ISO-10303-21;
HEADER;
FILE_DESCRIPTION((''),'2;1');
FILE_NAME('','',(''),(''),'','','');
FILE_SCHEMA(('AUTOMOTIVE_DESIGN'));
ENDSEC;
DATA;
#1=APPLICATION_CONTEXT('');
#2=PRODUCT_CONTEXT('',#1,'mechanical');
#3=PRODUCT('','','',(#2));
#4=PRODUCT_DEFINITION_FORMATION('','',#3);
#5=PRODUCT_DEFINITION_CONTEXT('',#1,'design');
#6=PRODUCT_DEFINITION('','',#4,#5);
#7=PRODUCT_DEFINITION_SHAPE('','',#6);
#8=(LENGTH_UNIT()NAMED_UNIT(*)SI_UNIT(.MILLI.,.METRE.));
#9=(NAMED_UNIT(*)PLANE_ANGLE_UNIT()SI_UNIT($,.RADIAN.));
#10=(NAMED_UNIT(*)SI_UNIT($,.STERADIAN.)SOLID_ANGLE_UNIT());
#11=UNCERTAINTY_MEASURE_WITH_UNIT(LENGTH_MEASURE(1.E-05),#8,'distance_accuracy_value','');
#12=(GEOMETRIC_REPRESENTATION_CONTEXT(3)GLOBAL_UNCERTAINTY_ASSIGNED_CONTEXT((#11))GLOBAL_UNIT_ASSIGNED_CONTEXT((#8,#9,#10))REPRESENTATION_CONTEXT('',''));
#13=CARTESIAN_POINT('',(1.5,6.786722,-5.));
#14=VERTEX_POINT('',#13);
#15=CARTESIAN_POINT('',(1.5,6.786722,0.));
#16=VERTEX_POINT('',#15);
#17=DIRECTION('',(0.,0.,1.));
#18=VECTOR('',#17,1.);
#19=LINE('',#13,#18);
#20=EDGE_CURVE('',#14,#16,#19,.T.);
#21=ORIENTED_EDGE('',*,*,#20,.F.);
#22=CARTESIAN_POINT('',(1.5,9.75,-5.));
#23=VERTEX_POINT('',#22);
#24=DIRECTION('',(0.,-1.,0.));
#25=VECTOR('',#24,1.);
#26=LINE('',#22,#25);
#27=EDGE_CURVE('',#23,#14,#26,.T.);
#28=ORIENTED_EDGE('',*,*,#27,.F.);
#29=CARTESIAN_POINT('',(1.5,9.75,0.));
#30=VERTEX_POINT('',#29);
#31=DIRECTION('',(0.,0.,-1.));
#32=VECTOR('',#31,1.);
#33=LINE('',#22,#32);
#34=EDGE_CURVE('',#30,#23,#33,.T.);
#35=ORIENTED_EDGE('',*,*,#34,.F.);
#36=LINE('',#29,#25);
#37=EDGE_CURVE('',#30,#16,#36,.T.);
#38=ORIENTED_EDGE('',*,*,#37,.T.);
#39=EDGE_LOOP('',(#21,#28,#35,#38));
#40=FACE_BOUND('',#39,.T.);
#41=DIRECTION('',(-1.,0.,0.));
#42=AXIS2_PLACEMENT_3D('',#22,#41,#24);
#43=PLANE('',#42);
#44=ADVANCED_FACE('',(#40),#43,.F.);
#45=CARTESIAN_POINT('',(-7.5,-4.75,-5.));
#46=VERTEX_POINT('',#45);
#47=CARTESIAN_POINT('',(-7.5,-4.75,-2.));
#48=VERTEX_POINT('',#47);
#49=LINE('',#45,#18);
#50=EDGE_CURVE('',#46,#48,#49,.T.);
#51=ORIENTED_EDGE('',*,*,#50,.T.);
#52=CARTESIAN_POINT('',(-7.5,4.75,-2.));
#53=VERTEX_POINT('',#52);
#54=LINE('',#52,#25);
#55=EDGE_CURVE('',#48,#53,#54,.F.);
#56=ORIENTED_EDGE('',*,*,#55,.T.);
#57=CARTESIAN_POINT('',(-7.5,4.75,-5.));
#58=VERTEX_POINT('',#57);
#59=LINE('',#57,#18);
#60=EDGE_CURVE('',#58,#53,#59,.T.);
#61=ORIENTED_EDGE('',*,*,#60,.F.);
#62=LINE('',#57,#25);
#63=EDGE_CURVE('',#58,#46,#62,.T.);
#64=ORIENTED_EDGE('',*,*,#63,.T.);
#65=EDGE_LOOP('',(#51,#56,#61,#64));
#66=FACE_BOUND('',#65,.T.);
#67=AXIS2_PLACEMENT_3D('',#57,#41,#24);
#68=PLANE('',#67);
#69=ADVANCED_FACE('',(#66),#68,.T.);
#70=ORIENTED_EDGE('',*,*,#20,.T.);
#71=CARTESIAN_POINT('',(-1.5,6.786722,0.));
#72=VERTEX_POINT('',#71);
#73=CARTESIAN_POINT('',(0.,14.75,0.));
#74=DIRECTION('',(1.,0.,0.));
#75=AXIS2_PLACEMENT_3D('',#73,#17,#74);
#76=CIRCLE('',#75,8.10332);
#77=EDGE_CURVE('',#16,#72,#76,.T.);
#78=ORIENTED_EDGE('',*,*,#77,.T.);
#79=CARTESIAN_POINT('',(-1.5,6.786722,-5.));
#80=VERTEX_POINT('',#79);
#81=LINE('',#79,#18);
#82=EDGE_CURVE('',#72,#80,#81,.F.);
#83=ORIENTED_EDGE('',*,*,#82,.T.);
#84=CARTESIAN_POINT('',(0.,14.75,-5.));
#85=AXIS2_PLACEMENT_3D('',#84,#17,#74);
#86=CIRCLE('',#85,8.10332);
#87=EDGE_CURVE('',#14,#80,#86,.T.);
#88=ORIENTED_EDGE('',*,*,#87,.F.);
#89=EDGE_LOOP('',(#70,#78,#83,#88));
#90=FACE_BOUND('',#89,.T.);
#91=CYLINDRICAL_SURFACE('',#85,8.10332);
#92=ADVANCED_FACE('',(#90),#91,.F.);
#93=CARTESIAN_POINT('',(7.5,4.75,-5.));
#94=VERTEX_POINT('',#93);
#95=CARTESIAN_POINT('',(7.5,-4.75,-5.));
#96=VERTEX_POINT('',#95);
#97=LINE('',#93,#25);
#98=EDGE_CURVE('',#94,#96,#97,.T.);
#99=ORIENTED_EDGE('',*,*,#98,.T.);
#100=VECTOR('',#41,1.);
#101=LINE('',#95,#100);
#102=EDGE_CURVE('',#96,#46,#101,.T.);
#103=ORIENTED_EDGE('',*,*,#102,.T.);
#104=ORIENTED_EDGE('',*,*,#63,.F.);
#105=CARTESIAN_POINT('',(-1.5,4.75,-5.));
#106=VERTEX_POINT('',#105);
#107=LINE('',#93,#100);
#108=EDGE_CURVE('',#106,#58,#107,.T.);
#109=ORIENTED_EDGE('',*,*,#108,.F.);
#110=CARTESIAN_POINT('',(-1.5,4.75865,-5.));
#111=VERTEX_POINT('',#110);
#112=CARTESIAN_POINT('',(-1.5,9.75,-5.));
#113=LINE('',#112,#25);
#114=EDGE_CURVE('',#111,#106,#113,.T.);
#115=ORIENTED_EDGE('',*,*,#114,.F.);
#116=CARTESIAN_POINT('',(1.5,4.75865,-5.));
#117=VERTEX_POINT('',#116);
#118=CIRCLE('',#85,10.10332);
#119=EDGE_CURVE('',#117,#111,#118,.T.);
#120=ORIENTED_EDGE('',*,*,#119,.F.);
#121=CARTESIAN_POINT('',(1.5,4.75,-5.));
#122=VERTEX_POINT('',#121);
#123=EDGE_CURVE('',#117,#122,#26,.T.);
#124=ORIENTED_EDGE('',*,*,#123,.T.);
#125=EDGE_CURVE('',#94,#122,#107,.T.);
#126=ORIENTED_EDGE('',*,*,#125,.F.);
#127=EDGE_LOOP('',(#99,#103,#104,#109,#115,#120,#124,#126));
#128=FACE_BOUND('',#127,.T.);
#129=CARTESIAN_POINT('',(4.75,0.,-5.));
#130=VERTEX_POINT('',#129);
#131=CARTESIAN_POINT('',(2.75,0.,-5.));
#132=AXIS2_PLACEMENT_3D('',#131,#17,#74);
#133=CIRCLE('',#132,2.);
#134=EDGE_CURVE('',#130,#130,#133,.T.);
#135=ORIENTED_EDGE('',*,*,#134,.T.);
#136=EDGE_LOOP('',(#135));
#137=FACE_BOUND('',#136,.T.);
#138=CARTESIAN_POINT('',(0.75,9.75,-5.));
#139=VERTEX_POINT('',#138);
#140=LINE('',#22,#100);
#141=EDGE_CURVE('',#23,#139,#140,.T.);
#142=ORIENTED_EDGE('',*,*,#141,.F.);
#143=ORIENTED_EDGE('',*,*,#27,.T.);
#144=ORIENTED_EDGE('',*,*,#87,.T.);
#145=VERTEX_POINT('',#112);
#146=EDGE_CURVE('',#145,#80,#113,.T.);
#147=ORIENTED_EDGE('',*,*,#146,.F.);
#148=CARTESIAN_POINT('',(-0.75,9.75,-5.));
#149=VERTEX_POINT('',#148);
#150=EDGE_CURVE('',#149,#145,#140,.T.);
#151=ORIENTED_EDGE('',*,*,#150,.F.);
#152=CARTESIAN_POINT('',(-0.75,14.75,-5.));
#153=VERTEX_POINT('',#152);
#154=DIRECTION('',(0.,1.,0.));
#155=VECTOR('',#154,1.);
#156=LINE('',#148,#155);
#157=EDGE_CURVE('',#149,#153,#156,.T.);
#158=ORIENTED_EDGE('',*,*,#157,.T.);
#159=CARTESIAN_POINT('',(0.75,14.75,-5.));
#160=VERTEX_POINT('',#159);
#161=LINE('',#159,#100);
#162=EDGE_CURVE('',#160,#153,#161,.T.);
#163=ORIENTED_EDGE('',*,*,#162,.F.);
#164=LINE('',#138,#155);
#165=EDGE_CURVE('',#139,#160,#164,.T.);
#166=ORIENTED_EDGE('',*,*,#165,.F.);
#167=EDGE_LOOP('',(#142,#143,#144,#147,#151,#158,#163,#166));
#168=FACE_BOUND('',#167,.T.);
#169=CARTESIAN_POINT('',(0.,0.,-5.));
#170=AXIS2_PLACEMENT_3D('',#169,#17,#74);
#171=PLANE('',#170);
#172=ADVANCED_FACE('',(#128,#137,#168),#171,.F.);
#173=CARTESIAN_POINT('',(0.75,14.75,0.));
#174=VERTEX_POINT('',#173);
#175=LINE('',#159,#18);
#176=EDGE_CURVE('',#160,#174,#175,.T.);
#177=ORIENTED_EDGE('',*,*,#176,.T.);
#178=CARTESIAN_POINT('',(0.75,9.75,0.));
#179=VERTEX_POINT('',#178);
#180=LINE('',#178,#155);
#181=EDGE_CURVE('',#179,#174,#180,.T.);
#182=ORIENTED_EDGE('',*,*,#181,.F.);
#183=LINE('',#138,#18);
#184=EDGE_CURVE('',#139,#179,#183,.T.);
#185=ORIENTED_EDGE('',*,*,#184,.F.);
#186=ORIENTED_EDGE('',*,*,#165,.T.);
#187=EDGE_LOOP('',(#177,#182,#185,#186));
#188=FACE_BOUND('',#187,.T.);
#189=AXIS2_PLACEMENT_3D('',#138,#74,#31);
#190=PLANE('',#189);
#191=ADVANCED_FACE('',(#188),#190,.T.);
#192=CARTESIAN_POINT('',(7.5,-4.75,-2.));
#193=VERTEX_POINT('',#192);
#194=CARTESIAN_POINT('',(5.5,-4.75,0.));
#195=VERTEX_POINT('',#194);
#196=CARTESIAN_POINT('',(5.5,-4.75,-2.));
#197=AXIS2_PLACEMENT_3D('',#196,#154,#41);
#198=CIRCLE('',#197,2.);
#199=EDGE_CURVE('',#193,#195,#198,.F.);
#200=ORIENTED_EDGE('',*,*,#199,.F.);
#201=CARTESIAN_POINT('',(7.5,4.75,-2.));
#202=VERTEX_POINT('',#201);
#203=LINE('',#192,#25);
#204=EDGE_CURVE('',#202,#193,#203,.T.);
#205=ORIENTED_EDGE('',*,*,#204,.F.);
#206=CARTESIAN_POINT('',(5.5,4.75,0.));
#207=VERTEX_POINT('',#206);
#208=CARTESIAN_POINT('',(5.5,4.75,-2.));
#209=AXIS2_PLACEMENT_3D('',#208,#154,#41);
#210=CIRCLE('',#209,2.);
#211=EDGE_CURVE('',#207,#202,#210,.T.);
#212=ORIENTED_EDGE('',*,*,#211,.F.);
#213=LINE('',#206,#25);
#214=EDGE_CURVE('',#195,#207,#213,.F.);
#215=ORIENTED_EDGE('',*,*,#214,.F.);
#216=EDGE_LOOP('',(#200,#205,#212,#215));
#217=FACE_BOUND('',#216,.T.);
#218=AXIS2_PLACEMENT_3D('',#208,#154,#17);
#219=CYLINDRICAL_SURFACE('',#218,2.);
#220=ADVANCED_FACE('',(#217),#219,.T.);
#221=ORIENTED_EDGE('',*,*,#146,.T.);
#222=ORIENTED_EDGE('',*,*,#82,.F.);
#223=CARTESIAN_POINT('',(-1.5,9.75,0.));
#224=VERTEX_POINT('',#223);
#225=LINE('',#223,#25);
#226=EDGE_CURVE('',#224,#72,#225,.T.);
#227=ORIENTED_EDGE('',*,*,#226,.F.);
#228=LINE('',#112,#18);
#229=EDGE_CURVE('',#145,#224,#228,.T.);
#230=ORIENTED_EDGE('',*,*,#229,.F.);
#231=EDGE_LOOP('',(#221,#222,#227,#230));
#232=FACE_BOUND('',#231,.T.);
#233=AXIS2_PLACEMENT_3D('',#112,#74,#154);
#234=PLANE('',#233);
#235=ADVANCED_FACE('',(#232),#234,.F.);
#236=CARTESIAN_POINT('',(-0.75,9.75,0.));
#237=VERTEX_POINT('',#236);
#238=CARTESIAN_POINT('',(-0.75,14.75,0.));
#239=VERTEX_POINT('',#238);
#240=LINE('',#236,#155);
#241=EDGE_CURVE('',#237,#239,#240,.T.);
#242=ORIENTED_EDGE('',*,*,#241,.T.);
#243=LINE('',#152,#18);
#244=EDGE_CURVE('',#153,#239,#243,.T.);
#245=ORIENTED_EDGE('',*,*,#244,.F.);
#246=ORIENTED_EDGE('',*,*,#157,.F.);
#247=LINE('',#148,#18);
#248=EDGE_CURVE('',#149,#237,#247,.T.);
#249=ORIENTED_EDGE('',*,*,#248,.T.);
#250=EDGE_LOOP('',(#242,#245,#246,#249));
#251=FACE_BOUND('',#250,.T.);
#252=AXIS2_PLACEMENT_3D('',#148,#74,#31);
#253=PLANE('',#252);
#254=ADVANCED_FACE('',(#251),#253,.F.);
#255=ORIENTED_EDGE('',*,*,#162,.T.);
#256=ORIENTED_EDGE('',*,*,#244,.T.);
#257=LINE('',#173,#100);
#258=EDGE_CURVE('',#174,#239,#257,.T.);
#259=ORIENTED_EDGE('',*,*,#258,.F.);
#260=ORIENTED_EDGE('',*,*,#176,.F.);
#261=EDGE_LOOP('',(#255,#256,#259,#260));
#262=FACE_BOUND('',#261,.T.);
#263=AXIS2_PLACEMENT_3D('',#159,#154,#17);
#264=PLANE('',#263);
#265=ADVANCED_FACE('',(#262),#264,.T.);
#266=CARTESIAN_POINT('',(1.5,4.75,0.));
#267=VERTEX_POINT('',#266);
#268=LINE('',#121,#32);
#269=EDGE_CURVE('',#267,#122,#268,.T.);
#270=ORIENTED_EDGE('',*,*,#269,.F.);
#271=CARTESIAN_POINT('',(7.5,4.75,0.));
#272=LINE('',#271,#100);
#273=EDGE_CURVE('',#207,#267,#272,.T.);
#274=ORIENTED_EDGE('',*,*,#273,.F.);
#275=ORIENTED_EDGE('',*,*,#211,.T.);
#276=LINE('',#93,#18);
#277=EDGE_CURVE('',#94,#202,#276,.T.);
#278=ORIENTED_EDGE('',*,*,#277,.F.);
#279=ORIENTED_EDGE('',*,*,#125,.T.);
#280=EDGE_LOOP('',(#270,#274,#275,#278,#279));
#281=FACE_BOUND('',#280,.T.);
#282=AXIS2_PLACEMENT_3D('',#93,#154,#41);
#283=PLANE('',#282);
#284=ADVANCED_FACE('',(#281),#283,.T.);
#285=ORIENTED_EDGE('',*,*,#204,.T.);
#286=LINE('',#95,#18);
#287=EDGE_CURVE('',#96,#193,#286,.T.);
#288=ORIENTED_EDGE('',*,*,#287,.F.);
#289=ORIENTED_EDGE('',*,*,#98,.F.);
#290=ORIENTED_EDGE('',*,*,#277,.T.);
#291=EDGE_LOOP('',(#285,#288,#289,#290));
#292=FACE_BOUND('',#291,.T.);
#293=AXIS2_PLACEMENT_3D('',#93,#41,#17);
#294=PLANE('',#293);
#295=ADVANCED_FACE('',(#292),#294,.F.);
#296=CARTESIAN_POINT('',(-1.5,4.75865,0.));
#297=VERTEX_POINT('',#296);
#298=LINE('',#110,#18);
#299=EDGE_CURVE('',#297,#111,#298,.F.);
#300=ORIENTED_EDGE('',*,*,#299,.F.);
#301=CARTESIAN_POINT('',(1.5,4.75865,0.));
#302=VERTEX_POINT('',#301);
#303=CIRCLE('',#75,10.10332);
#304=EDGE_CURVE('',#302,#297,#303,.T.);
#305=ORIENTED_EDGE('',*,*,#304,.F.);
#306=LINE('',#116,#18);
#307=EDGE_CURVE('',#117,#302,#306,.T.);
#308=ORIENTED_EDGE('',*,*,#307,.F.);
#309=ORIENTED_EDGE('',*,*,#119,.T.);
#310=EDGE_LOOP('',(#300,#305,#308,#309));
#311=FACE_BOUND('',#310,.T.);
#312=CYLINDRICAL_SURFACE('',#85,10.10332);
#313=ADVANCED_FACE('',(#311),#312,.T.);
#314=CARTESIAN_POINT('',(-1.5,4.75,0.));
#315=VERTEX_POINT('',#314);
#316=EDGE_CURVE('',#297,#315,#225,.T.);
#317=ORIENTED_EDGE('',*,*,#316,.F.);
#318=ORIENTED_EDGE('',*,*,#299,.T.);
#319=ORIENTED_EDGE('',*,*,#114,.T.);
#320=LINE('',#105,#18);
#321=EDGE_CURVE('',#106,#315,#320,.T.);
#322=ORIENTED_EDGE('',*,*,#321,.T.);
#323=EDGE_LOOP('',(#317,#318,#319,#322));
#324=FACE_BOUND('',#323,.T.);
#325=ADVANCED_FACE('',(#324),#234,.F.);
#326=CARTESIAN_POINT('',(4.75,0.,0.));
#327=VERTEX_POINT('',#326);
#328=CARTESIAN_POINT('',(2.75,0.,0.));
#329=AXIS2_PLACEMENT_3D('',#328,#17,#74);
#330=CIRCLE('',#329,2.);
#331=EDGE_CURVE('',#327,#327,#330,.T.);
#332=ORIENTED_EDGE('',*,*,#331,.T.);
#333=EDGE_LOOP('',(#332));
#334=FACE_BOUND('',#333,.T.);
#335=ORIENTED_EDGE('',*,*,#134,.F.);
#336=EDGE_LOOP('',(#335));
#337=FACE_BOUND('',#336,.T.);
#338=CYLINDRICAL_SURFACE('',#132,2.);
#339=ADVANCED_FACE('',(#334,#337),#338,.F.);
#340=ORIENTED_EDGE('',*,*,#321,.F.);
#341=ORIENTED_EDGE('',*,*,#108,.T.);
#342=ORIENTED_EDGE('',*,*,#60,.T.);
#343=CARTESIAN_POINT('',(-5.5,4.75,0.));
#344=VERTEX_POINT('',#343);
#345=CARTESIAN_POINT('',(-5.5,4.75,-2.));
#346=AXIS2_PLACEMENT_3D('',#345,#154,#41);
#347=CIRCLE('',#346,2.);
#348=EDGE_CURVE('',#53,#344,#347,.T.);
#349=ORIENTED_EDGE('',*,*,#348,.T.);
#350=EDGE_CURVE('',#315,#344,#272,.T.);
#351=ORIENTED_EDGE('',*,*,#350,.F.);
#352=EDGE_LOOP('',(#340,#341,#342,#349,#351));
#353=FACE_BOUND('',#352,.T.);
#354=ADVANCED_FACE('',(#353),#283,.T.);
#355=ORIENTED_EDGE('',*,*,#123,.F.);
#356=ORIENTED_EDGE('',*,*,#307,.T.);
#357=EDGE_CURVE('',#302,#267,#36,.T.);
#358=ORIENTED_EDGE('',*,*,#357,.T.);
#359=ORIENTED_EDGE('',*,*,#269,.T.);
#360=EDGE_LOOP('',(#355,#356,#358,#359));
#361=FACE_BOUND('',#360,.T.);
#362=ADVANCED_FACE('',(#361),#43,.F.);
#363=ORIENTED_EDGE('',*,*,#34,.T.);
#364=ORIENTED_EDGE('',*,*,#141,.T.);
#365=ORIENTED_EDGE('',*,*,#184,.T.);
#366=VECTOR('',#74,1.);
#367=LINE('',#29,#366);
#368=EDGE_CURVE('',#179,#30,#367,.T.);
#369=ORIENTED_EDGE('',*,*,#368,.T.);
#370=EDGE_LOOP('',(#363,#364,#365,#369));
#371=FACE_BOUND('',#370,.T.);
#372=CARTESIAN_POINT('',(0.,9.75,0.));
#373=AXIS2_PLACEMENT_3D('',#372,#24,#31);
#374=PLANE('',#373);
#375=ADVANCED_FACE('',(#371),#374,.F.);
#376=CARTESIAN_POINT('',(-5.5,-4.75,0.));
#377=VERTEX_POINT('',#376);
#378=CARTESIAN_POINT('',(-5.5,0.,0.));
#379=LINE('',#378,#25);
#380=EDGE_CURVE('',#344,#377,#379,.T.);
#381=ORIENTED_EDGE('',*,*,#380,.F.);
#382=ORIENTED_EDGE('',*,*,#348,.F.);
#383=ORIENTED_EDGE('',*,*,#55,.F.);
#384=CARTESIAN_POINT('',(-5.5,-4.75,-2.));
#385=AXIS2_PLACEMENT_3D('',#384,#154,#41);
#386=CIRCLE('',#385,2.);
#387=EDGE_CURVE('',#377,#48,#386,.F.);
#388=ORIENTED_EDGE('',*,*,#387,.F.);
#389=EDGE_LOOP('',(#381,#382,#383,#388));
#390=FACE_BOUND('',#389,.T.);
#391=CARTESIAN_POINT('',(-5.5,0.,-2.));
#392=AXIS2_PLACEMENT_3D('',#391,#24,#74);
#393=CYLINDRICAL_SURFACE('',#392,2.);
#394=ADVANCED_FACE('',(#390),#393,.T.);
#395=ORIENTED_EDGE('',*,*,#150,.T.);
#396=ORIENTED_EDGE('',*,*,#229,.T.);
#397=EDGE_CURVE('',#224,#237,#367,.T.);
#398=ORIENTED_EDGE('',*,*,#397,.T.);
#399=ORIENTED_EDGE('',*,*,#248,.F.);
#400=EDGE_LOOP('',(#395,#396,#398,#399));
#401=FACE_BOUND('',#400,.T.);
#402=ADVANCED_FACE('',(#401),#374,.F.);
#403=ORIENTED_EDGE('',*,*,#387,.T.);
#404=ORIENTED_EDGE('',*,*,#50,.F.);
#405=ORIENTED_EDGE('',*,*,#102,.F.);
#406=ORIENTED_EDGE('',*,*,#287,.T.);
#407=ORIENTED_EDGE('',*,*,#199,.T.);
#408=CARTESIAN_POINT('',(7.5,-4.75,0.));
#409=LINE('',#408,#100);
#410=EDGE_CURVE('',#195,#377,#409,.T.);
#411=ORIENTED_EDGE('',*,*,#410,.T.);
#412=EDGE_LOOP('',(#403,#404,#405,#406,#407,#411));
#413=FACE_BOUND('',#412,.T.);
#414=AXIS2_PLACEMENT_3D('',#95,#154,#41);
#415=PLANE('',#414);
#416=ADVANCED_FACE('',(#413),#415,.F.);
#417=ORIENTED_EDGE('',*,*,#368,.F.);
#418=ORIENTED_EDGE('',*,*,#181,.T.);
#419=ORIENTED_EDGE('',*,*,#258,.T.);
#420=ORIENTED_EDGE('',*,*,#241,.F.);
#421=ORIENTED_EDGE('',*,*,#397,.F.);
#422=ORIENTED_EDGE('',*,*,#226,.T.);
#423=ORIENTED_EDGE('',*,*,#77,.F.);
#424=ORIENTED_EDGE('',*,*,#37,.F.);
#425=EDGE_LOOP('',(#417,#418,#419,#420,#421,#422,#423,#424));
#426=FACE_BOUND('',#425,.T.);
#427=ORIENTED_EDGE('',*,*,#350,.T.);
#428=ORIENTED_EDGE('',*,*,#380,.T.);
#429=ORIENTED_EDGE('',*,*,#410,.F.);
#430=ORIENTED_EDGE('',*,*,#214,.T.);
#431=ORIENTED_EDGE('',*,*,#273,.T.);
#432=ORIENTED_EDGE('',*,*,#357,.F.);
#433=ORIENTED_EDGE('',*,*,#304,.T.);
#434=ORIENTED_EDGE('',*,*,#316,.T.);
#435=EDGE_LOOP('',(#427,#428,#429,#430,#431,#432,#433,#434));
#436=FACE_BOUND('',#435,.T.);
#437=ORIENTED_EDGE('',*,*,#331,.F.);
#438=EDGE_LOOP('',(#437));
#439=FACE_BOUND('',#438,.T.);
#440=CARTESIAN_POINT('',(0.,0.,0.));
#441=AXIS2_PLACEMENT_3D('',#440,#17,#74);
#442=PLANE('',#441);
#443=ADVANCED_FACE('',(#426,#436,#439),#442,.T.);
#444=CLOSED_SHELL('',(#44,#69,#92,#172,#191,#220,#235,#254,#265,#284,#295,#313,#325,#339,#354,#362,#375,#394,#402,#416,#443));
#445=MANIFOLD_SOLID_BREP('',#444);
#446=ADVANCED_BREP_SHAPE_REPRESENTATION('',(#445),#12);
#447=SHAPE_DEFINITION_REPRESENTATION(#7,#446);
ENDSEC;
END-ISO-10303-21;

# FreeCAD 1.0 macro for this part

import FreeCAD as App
import Part
import Sketcher
Q = App.Units.Quantity


def edges_at(feature, points):
    """Names of the edges that pass closest to the given points."""
    edges = feature.Shape.Edges
    near = lambda p: min(range(len(edges)), key=lambda i: edges[i].distToShape(Part.Vertex(*p))[0])
    return sorted({f"Edge{near(p) + 1}" for p in points})


def add_polygon(sketch, points):
    """Adds a closed chain of lines whose ends are joined by coincident constraints."""
    first, n = sketch.GeometryCount, len(points)
    for a, b in zip(points, points[1:] + points[:1]):
        sketch.addGeometry(Part.LineSegment(App.Vector(*a, 0), App.Vector(*b, 0)), False)
    for i in range(n):
        sketch.addConstraint(Sketcher.Constraint("Coincident", first + i, 2, first + (i + 1) % n, 1))

doc = App.newDocument("Part")
body = doc.addObject("PartDesign::Body", "Body")

# Sketch on XY plane
sketch1 = body.newObject("Sketcher::SketchObject", "Sketch")
sketch1.AttachmentSupport = (doc.getObject("XY_Plane"), [""])
sketch1.MapMode = "FlatFace"
add_polygon(sketch1, [(-7.5, 4.75), (-7.5, -4.75), (7.5, -4.75), (7.5, 4.75)])  # lines 0-3
sketch1.addConstraint([
    Sketcher.Constraint("Vertical", 0),
    Sketcher.Constraint("Horizontal", 1),
    Sketcher.Constraint("Vertical", 2),
    Sketcher.Constraint("Horizontal", 3),
    Sketcher.Constraint("Symmetric", 0, 2, 2, 2, -1, 1),
    Sketcher.Constraint("DistanceX", 1, 1, 1, 2, Q("15 mm")),
    Sketcher.Constraint("DistanceY", 0, 2, 0, 1, Q("9.5 mm")),
])
pad1 = body.newObject("PartDesign::Pad", "Pad")
pad1.Profile = sketch1
pad1.Length = 5
pad1.Reversed = True

# Sketch on XY plane
sketch2 = body.newObject("Sketcher::SketchObject", "Sketch001")
sketch2.AttachmentSupport = (doc.getObject("XY_Plane"), [""])
sketch2.MapMode = "FlatFace"
sketch2.addGeometry(Part.Circle(App.Vector(2.75, 0, 0), App.Vector(0, 0, 1), 2), False)
sketch2.addConstraint([
    Sketcher.Constraint("PointOnObject", 0, 3, -1),
    Sketcher.Constraint("Diameter", 0, Q("4 mm")),
    Sketcher.Constraint("DistanceX", -1, 1, 0, 3, Q("2.75 mm")),
])
pocket1 = body.newObject("PartDesign::Pocket", "Pocket")
pocket1.Profile = sketch2
pocket1.Type = "ThroughAll"
pocket1.Midplane = True

# Sketch on XZ plane
sketch3 = body.newObject("Sketcher::SketchObject", "Sketch002")
sketch3.AttachmentSupport = (doc.getObject("XZ_Plane"), [""])
sketch3.MapMode = "FlatFace"
sketch3.AttachmentOffset = App.Placement(App.Vector(0, 0, -4.75), App.Rotation())
add_polygon(sketch3, [(-1.5, -5), (-1.5, 0), (1.5, 0), (1.5, -5)])  # lines 0-3
sketch3.addConstraint([
    Sketcher.Constraint("Vertical", 0),
    Sketcher.Constraint("Horizontal", 1),
    Sketcher.Constraint("Vertical", 2),
    Sketcher.Constraint("Horizontal", 3),
    Sketcher.Constraint("Symmetric", 0, 2, 1, 2, -1, 1),
    Sketcher.Constraint("DistanceX", 1, 1, 1, 2, Q("3 mm")),
    Sketcher.Constraint("DistanceY", 0, 1, 0, 2, Q("5 mm")),
])
pad2 = body.newObject("PartDesign::Pad", "Pad001")
pad2.Profile = sketch3
pad2.Length = 5
pad2.Reversed = True
doc.recompute()

fillet = body.newObject("PartDesign::Fillet", "Fillet")
fillet.Base = (pad2, edges_at(pad2, [(7.5, 0, 0), (-7.5, 0, 0)]))
fillet.Radius = 2

# Sketch on XY plane
sketch4 = body.newObject("Sketcher::SketchObject", "Sketch003")
sketch4.AttachmentSupport = (doc.getObject("XY_Plane"), [""])
sketch4.MapMode = "FlatFace"
add_polygon(sketch4, [(-0.75, 14.75), (-0.75, 9.75), (0.75, 9.75), (0.75, 14.75)])  # lines 0-3
sketch4.addConstraint([
    Sketcher.Constraint("Vertical", 0),
    Sketcher.Constraint("Horizontal", 1),
    Sketcher.Constraint("Vertical", 2),
    Sketcher.Constraint("Horizontal", 3),
    Sketcher.Constraint("DistanceY", 0, 2, 0, 1, Q("5 mm")),
    Sketcher.Constraint("DistanceX", 1, 1, 1, 2, Q("1.5 mm")),
    Sketcher.Constraint("DistanceX", 0, 2, -1, 1, Q("0.75 mm")),
    Sketcher.Constraint("DistanceY", -1, 1, 0, 2, Q("9.75 mm")),
])
pad3 = body.newObject("PartDesign::Pad", "Pad002")
pad3.Profile = sketch4
pad3.Length = 5
pad3.Reversed = True

# Sketch on XY plane
sketch5 = body.newObject("Sketcher::SketchObject", "Sketch004")
sketch5.AttachmentSupport = (doc.getObject("XY_Plane"), [""])
sketch5.MapMode = "FlatFace"
sketch5.addGeometry([
    Part.Circle(App.Vector(0, 14.75, 0), App.Vector(0, 0, 1), 10.10332),
    Part.Circle(App.Vector(0, 14.75, 0), App.Vector(0, 0, 1), 8.10332),
], False)
sketch5.addConstraint([
    Sketcher.Constraint("Coincident", 1, 3, 0, 3),
    Sketcher.Constraint("PointOnObject", 0, 3, -2),
    Sketcher.Constraint("Diameter", 0, Q("20.20664 mm")),
    Sketcher.Constraint("Diameter", 1, Q("16.20664 mm")),
    Sketcher.Constraint("DistanceY", -1, 1, 0, 3, Q("14.75 mm")),
])
pad4 = body.newObject("PartDesign::Pad", "Pad003")
pad4.Profile = sketch5
pad4.Length = 5
pad4.Reversed = True

doc.recompute()
